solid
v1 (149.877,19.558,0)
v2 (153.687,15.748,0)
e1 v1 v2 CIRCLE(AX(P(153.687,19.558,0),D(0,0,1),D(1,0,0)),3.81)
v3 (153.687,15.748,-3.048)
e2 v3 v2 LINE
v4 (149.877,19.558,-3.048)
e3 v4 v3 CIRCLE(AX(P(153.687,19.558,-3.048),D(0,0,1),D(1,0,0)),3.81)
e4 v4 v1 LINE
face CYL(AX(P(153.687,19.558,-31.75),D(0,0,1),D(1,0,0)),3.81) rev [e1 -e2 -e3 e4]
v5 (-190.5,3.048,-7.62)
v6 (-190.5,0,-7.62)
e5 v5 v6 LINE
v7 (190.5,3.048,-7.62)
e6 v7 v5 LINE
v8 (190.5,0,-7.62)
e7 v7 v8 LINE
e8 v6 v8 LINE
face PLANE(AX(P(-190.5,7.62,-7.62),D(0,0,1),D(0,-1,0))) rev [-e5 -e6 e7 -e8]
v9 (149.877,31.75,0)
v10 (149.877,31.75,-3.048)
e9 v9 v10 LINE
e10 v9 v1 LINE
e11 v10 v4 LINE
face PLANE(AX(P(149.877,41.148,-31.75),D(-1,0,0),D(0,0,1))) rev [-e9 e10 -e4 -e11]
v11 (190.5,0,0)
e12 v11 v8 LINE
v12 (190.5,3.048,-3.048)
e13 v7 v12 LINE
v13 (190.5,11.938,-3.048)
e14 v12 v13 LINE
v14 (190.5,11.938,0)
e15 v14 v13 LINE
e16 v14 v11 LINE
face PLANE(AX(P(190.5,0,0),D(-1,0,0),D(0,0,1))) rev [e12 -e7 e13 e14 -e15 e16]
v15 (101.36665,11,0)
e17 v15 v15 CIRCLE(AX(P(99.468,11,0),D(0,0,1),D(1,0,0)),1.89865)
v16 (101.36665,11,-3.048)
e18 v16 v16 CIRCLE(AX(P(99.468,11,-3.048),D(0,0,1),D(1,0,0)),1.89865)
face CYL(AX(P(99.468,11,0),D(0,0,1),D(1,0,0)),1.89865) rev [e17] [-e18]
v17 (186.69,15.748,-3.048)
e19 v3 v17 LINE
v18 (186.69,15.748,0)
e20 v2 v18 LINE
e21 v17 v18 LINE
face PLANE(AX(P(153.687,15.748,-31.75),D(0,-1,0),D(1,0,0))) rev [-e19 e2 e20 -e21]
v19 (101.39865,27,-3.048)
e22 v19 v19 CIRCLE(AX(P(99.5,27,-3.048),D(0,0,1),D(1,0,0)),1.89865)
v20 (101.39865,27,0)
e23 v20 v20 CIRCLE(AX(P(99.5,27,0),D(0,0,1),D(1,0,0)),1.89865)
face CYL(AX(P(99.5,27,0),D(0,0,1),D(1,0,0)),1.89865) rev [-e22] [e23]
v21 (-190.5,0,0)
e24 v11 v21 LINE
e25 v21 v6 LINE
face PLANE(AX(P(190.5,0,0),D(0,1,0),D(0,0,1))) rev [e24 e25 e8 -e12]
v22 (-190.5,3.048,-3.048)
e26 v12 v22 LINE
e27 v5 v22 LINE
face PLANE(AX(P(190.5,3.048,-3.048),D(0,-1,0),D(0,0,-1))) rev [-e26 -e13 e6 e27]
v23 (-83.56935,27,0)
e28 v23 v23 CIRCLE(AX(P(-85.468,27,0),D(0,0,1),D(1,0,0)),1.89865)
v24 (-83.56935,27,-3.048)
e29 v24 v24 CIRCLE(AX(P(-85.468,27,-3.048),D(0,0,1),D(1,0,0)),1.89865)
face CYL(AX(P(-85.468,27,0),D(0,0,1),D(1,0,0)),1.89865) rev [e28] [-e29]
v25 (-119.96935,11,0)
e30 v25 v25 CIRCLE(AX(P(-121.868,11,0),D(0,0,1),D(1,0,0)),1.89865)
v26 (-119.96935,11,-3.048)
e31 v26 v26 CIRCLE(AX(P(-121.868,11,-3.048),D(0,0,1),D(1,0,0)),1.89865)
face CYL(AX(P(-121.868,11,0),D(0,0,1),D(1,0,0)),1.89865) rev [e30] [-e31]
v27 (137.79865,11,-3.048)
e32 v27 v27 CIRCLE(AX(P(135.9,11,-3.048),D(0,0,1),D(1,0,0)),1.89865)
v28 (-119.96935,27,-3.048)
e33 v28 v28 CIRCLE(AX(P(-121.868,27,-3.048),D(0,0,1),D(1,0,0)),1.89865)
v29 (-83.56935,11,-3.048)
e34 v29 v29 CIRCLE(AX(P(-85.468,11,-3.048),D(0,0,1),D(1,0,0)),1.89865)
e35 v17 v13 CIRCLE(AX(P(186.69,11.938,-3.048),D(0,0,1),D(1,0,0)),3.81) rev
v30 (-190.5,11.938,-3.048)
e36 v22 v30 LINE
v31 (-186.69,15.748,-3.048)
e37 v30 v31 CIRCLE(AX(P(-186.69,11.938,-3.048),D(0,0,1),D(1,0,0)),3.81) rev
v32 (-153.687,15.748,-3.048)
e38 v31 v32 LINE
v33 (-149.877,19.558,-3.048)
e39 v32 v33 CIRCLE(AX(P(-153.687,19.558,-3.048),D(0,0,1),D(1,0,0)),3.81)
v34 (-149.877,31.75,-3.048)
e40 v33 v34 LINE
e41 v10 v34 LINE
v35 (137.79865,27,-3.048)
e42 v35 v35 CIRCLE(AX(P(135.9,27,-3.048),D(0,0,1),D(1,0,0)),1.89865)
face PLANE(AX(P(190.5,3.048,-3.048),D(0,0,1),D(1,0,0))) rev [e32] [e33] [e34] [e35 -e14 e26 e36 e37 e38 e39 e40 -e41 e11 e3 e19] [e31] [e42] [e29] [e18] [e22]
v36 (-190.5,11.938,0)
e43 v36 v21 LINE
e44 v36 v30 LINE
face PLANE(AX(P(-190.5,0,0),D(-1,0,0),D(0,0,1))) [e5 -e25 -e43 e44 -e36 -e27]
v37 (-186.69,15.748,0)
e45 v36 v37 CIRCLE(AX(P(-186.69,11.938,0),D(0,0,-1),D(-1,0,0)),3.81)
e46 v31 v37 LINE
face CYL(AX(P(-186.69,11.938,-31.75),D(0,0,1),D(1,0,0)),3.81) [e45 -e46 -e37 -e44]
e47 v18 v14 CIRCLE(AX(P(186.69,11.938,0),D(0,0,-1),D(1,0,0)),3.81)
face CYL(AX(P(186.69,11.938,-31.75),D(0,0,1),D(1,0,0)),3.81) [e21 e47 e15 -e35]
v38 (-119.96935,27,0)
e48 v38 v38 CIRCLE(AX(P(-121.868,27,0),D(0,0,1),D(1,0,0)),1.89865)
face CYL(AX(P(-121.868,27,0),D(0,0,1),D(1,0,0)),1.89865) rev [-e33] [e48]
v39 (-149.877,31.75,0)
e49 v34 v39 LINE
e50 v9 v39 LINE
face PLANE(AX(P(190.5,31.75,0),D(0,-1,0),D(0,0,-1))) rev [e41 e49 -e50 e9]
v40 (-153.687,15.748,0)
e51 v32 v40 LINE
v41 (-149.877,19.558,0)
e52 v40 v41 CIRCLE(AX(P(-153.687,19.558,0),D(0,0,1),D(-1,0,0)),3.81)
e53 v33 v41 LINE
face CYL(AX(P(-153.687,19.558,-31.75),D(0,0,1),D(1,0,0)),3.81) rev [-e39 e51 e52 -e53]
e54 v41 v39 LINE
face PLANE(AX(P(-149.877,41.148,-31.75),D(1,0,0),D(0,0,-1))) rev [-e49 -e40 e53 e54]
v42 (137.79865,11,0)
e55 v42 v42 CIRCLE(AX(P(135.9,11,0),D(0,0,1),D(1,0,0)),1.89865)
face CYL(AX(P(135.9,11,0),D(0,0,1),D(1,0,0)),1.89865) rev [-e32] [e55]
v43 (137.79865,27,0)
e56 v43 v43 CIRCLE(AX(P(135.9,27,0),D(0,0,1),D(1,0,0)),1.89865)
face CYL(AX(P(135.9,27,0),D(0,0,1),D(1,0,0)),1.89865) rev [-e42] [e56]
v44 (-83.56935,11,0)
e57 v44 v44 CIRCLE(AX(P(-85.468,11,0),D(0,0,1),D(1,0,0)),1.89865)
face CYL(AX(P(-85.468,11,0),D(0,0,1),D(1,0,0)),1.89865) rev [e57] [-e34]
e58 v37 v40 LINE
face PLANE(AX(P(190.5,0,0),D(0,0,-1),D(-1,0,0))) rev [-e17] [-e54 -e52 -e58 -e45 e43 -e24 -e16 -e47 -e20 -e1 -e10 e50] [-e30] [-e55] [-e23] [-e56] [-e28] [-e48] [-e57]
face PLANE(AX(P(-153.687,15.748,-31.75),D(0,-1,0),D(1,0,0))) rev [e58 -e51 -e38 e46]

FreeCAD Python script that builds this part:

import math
import FreeCAD as App
import Part
import Sketcher
from FreeCAD import Vector
Q = App.Units.Quantity

doc = App.newDocument("Part")
body = doc.addObject("PartDesign::Body", "Body")

# Sketch on YZ plane
sketch1 = doc.addObject("Sketcher::SketchObject", "Sketch")
body.addObject(sketch1)
sketch1.AttachmentSupport = (doc.YZ_Plane, [""])
sketch1.MapMode = "FlatFace"
sketch1.addGeometry(Part.LineSegment(Vector(0, 0, 0), Vector(0, -31.75, 0)), False)
sketch1.addGeometry(Part.LineSegment(Vector(0, -31.75, 0), Vector(3.048, -31.75, 0)), False)
sketch1.addGeometry(Part.LineSegment(Vector(3.048, -31.75, 0), Vector(3.048, -3.048, 0)), False)
sketch1.addGeometry(Part.LineSegment(Vector(3.048, -3.048, 0), Vector(31.75, -3.048, 0)), False)
sketch1.addGeometry(Part.LineSegment(Vector(31.75, -3.048, 0), Vector(31.75, 0, 0)), False)
sketch1.addGeometry(Part.LineSegment(Vector(31.75, 0, 0), Vector(0, 0, 0)), False)
sketch1.addConstraint(Sketcher.Constraint("Coincident", 0, 2, 1, 1))
sketch1.addConstraint(Sketcher.Constraint("Coincident", 1, 2, 2, 1))
sketch1.addConstraint(Sketcher.Constraint("Coincident", 2, 2, 3, 1))
sketch1.addConstraint(Sketcher.Constraint("Coincident", 3, 2, 4, 1))
sketch1.addConstraint(Sketcher.Constraint("Coincident", 4, 2, 5, 1))
sketch1.addConstraint(Sketcher.Constraint("Coincident", 5, 2, 0, 1))
sketch1.addConstraint(Sketcher.Constraint("Vertical", 0))
sketch1.addConstraint(Sketcher.Constraint("Horizontal", 1))
sketch1.addConstraint(Sketcher.Constraint("Vertical", 2))
sketch1.addConstraint(Sketcher.Constraint("Horizontal", 3))
sketch1.addConstraint(Sketcher.Constraint("Vertical", 4))
sketch1.addConstraint(Sketcher.Constraint("Horizontal", 5))
sketch1.addConstraint(Sketcher.Constraint("Coincident", 5, 2, -1, 1))
sketch1.addConstraint(Sketcher.Constraint("Equal", 5, 0))
sketch1.addConstraint(Sketcher.Constraint("Equal", 3, 2))
sketch1.addConstraint(Sketcher.Constraint("DistanceX", 1, 1, 1, 2, Q("0.12 in")))
sketch1.addConstraint(Sketcher.Constraint("DistanceX", 3, 1, 3, 2, Q("1.13 in")))
pad1 = doc.addObject("PartDesign::Pad", "Pad")
body.addObject(pad1)
pad1.Profile = sketch1
pad1.Length = Q("15 in")
pad1.Midplane = True

# Sketch on XY plane
sketch2 = doc.addObject("Sketcher::SketchObject", "Sketch001")
body.addObject(sketch2)
sketch2.AttachmentSupport = (doc.XY_Plane, [""])
sketch2.MapMode = "FlatFace"
sketch2.addGeometry(Part.Circle(Vector(135.9, 27, 0), Vector(0, 0, 1), 1.89865), False)
sketch2.addGeometry(Part.Circle(Vector(135.9, 11, 0), Vector(0, 0, 1), 1.89865), False)
sketch2.addGeometry(Part.Circle(Vector(99.5, 27, 0), Vector(0, 0, 1), 1.89865), False)
sketch2.addGeometry(Part.Circle(Vector(99.468, 11, 0), Vector(0, 0, 1), 1.89865), False)
sketch2.addGeometry(Part.Circle(Vector(-121.868, 27, 0), Vector(0, 0, 1), 1.89865), False)
sketch2.addGeometry(Part.Circle(Vector(-121.868, 11, 0), Vector(0, 0, 1), 1.89865), False)
sketch2.addGeometry(Part.Circle(Vector(-85.468, 11, 0), Vector(0, 0, 1), 1.89865), False)
sketch2.addGeometry(Part.Circle(Vector(-85.468, 27, 0), Vector(0, 0, 1), 1.89865), False)
sketch2.addConstraint(Sketcher.Constraint("Equal", 0, 1))
sketch2.addConstraint(Sketcher.Constraint("Equal", 1, 2))
sketch2.addConstraint(Sketcher.Constraint("Equal", 2, 3))
sketch2.addConstraint(Sketcher.Constraint("Equal", 3, 4))
sketch2.addConstraint(Sketcher.Constraint("Equal", 4, 5))
sketch2.addConstraint(Sketcher.Constraint("Equal", 5, 6))
sketch2.addConstraint(Sketcher.Constraint("Equal", 6, 7))
sketch2.addConstraint(Sketcher.Constraint("Horizontal", 0, 3, 2, 3))
sketch2.addConstraint(Sketcher.Constraint("Horizontal", 1, 3, 3, 3))
sketch2.addConstraint(Sketcher.Constraint("Horizontal", 2, 3, 4, 3))
sketch2.addConstraint(Sketcher.Constraint("Horizontal", 3, 3, 5, 3))
sketch2.addConstraint(Sketcher.Constraint("Horizontal", 5, 3, 6, 3))
sketch2.addConstraint(Sketcher.Constraint("Horizontal", 4, 3, 7, 3))
sketch2.addConstraint(Sketcher.Constraint("Vertical", 0, 3, 1, 3))
sketch2.addConstraint(Sketcher.Constraint("Vertical", 4, 3, 5, 3))
sketch2.addConstraint(Sketcher.Constraint("Vertical", 6, 3, 7, 3))
sketch2.addConstraint(Sketcher.Constraint("Diameter", 0, Q("0.1495 in")))
sketch2.addConstraint(Sketcher.Constraint("DistanceX", -1, 1, 0, 3, 135.9))
sketch2.addConstraint(Sketcher.Constraint("DistanceY", -1, 1, 0, 3, 27.0))
sketch2.addConstraint(Sketcher.Constraint("DistanceY", -1, 1, 1, 3, 11.0))
sketch2.addConstraint(Sketcher.Constraint("DistanceX", -1, 1, 2, 3, 99.5))
sketch2.addConstraint(Sketcher.Constraint("DistanceX", -1, 1, 3, 3, 99.468))
sketch2.addConstraint(Sketcher.Constraint("DistanceX", 4, 3, -1, 1, 121.868))
sketch2.addConstraint(Sketcher.Constraint("DistanceX", 6, 3, -1, 1, 85.468))
doc.recompute()
hole = doc.addObject("PartDesign::Hole", "Hole")
body.addObject(hole)
hole.Profile = sketch2
hole.ThreadType = "None"
hole.Diameter = Q("0.1495 in")
hole.DepthType = "ThroughAll"

# Sketch on XY plane
sketch3 = doc.addObject("Sketcher::SketchObject", "Sketch002")
body.addObject(sketch3)
sketch3.AttachmentSupport = (doc.XY_Plane, [""])
sketch3.MapMode = "FlatFace"
sketch3.addGeometry(Part.LineSegment(Vector(149.877, 41.148, 0), Vector(149.877, 19.558, 0)), False)
sketch3.addGeometry(Part.ArcOfCircle(Part.Circle(Vector(153.687, 19.558, 0), Vector(0, 0, 1), 3.81), math.radians(-180), math.radians(-90)), False)
sketch3.addGeometry(Part.LineSegment(Vector(153.687, 15.748, 0), Vector(186.69, 15.748, 0)), False)
sketch3.addGeometry(Part.ArcOfCircle(Part.Circle(Vector(186.69, 11.938, 0), Vector(0, 0, 1), 3.81), math.radians(0), math.radians(90)), False)
sketch3.addGeometry(Part.LineSegment(Vector(190.5, 11.938, 0), Vector(190.5, -9.652, 0)), False)
sketch3.addGeometry(Part.LineSegment(Vector(190.5, -9.652, 0), Vector(198.12, -9.652, 0)), False)
sketch3.addGeometry(Part.LineSegment(Vector(198.12, -9.652, 0), Vector(198.12, 41.148, 0)), False)
sketch3.addGeometry(Part.LineSegment(Vector(198.12, 41.148, 0), Vector(149.877, 41.148, 0)), False)
sketch3.addGeometry(Part.LineSegment(Vector(-149.877, 41.148, 0), Vector(-198.12, 41.148, 0)), False)
sketch3.addGeometry(Part.LineSegment(Vector(-198.12, 41.148, 0), Vector(-198.12, -9.652, 0)), False)
sketch3.addGeometry(Part.LineSegment(Vector(-198.12, -9.652, 0), Vector(-190.5, -9.652, 0)), False)
sketch3.addGeometry(Part.LineSegment(Vector(-190.5, -9.652, 0), Vector(-190.5, 11.938, 0)), False)
sketch3.addGeometry(Part.ArcOfCircle(Part.Circle(Vector(-186.69, 11.938, 0), Vector(0, 0, 1), 3.81), math.radians(90), math.radians(180)), False)
sketch3.addGeometry(Part.LineSegment(Vector(-186.69, 15.748, 0), Vector(-153.687, 15.748, 0)), False)
sketch3.addGeometry(Part.ArcOfCircle(Part.Circle(Vector(-153.687, 19.558, 0), Vector(0, 0, 1), 3.81), math.radians(-90), math.radians(0)), False)
sketch3.addGeometry(Part.LineSegment(Vector(-149.877, 19.558, 0), Vector(-149.877, 41.148, 0)), False)
sketch3.addConstraint(Sketcher.Constraint("Tangent", 0, 2, 1, 1))
sketch3.addConstraint(Sketcher.Constraint("Tangent", 1, 2, 2, 1))
sketch3.addConstraint(Sketcher.Constraint("Tangent", 2, 2, 3, 2))
sketch3.addConstraint(Sketcher.Constraint("Tangent", 3, 1, 4, 1))
sketch3.addConstraint(Sketcher.Constraint("Coincident", 4, 2, 5, 1))
sketch3.addConstraint(Sketcher.Constraint("Coincident", 5, 2, 6, 1))
sketch3.addConstraint(Sketcher.Constraint("Coincident", 6, 2, 7, 1))
sketch3.addConstraint(Sketcher.Constraint("Coincident", 7, 2, 0, 1))
sketch3.addConstraint(Sketcher.Constraint("Coincident", 8, 2, 9, 1))
sketch3.addConstraint(Sketcher.Constraint("Coincident", 9, 2, 10, 1))
sketch3.addConstraint(Sketcher.Constraint("Coincident", 10, 2, 11, 1))
sketch3.addConstraint(Sketcher.Constraint("Tangent", 11, 2, 12, 2))
sketch3.addConstraint(Sketcher.Constraint("Tangent", 12, 1, 13, 1))
sketch3.addConstraint(Sketcher.Constraint("Tangent", 13, 2, 14, 1))
sketch3.addConstraint(Sketcher.Constraint("Tangent", 14, 2, 15, 1))
sketch3.addConstraint(Sketcher.Constraint("Coincident", 15, 2, 8, 1))
sketch3.addConstraint(Sketcher.Constraint("Vertical", 0))
sketch3.addConstraint(Sketcher.Constraint("Horizontal", 2))
sketch3.addConstraint(Sketcher.Constraint("Vertical", 4))
sketch3.addConstraint(Sketcher.Constraint("Horizontal", 5))
sketch3.addConstraint(Sketcher.Constraint("Vertical", 6))
sketch3.addConstraint(Sketcher.Constraint("Horizontal", 7))
sketch3.addConstraint(Sketcher.Constraint("Horizontal", 8))
sketch3.addConstraint(Sketcher.Constraint("Vertical", 9))
sketch3.addConstraint(Sketcher.Constraint("Horizontal", 10))
sketch3.addConstraint(Sketcher.Constraint("Vertical", 11))
sketch3.addConstraint(Sketcher.Constraint("Horizontal", 13))
sketch3.addConstraint(Sketcher.Constraint("Vertical", 15))
sketch3.addConstraint(Sketcher.Constraint("Equal", 1, 3))
sketch3.addConstraint(Sketcher.Constraint("Equal", 3, 12))
sketch3.addConstraint(Sketcher.Constraint("Equal", 12, 14))
sketch3.addConstraint(Sketcher.Constraint("Symmetric", 3, 3, 12, 3, -2))
sketch3.addConstraint(Sketcher.Constraint("Symmetric", 6, 2, 8, 2, -2))
sketch3.addConstraint(Sketcher.Constraint("Horizontal", 5, 2, 9, 2))
sketch3.addConstraint(Sketcher.Constraint("Equal", 7, 8))
sketch3.addConstraint(Sketcher.Constraint("Equal", 0, 4))
sketch3.addConstraint(Sketcher.Constraint("DistanceY", 6, 1, 6, 2, Q("2 in")))
sketch3.addConstraint(Sketcher.Constraint("Radius", 1, Q("0.15 in")))
sketch3.addConstraint(Sketcher.Constraint("DistanceX", 5, 1, 5, 2, Q("0.3 in")))
sketch3.addConstraint(Sketcher.Constraint("DistanceX", -1, 1, 3, 1, Q("7.5 in")))
sketch3.addConstraint(Sketcher.Constraint("DistanceY", -1, 1, 1, 3, Q("0.77 in")))
sketch3.addConstraint(Sketcher.Constraint("DistanceX", 2, 1, 2, 2, 33.003))
pocket1 = doc.addObject("PartDesign::Pocket", "Pocket")
body.addObject(pocket1)
pocket1.Profile = sketch3
pocket1.Type = "ThroughAll"

# Sketch on YZ plane
sketch4 = doc.addObject("Sketcher::SketchObject", "Sketch003")
body.addObject(sketch4)
sketch4.AttachmentSupport = (doc.YZ_Plane, [""])
sketch4.MapMode = "FlatFace"
sketch4.addGeometry(Part.LineSegment(Vector(7.62, -7.62, 0), Vector(-7.62, -7.62, 0)), False)
sketch4.addGeometry(Part.LineSegment(Vector(-7.62, -7.62, 0), Vector(-7.62, -33.02, 0)), False)
sketch4.addGeometry(Part.LineSegment(Vector(-7.62, -33.02, 0), Vector(7.62, -33.02, 0)), False)
sketch4.addGeometry(Part.LineSegment(Vector(7.62, -33.02, 0), Vector(7.62, -7.62, 0)), False)
sketch4.addConstraint(Sketcher.Constraint("Coincident", 0, 2, 1, 1))
sketch4.addConstraint(Sketcher.Constraint("Coincident", 1, 2, 2, 1))
sketch4.addConstraint(Sketcher.Constraint("Coincident", 2, 2, 3, 1))
sketch4.addConstraint(Sketcher.Constraint("Coincident", 3, 2, 0, 1))
sketch4.addConstraint(Sketcher.Constraint("Horizontal", 0))
sketch4.addConstraint(Sketcher.Constraint("Vertical", 1))
sketch4.addConstraint(Sketcher.Constraint("Horizontal", 2))
sketch4.addConstraint(Sketcher.Constraint("Vertical", 3))
sketch4.addConstraint(Sketcher.Constraint("DistanceY", 1, 2, 1, 1, Q("1 in")))
sketch4.addConstraint(Sketcher.Constraint("DistanceX", 0, 2, 0, 1, Q("0.6 in")))
sketch4.addConstraint(Sketcher.Constraint("DistanceX", 0, 2, -1, 1, Q("0.3 in")))
sketch4.addConstraint(Sketcher.Constraint("DistanceY", 0, 2, -1, 1, Q("0.3 in")))
pocket2 = doc.addObject("PartDesign::Pocket", "Pocket001")
body.addObject(pocket2)
pocket2.Profile = sketch4
pocket2.Type = "ThroughAll"
pocket2.Midplane = True

doc.recompute()
